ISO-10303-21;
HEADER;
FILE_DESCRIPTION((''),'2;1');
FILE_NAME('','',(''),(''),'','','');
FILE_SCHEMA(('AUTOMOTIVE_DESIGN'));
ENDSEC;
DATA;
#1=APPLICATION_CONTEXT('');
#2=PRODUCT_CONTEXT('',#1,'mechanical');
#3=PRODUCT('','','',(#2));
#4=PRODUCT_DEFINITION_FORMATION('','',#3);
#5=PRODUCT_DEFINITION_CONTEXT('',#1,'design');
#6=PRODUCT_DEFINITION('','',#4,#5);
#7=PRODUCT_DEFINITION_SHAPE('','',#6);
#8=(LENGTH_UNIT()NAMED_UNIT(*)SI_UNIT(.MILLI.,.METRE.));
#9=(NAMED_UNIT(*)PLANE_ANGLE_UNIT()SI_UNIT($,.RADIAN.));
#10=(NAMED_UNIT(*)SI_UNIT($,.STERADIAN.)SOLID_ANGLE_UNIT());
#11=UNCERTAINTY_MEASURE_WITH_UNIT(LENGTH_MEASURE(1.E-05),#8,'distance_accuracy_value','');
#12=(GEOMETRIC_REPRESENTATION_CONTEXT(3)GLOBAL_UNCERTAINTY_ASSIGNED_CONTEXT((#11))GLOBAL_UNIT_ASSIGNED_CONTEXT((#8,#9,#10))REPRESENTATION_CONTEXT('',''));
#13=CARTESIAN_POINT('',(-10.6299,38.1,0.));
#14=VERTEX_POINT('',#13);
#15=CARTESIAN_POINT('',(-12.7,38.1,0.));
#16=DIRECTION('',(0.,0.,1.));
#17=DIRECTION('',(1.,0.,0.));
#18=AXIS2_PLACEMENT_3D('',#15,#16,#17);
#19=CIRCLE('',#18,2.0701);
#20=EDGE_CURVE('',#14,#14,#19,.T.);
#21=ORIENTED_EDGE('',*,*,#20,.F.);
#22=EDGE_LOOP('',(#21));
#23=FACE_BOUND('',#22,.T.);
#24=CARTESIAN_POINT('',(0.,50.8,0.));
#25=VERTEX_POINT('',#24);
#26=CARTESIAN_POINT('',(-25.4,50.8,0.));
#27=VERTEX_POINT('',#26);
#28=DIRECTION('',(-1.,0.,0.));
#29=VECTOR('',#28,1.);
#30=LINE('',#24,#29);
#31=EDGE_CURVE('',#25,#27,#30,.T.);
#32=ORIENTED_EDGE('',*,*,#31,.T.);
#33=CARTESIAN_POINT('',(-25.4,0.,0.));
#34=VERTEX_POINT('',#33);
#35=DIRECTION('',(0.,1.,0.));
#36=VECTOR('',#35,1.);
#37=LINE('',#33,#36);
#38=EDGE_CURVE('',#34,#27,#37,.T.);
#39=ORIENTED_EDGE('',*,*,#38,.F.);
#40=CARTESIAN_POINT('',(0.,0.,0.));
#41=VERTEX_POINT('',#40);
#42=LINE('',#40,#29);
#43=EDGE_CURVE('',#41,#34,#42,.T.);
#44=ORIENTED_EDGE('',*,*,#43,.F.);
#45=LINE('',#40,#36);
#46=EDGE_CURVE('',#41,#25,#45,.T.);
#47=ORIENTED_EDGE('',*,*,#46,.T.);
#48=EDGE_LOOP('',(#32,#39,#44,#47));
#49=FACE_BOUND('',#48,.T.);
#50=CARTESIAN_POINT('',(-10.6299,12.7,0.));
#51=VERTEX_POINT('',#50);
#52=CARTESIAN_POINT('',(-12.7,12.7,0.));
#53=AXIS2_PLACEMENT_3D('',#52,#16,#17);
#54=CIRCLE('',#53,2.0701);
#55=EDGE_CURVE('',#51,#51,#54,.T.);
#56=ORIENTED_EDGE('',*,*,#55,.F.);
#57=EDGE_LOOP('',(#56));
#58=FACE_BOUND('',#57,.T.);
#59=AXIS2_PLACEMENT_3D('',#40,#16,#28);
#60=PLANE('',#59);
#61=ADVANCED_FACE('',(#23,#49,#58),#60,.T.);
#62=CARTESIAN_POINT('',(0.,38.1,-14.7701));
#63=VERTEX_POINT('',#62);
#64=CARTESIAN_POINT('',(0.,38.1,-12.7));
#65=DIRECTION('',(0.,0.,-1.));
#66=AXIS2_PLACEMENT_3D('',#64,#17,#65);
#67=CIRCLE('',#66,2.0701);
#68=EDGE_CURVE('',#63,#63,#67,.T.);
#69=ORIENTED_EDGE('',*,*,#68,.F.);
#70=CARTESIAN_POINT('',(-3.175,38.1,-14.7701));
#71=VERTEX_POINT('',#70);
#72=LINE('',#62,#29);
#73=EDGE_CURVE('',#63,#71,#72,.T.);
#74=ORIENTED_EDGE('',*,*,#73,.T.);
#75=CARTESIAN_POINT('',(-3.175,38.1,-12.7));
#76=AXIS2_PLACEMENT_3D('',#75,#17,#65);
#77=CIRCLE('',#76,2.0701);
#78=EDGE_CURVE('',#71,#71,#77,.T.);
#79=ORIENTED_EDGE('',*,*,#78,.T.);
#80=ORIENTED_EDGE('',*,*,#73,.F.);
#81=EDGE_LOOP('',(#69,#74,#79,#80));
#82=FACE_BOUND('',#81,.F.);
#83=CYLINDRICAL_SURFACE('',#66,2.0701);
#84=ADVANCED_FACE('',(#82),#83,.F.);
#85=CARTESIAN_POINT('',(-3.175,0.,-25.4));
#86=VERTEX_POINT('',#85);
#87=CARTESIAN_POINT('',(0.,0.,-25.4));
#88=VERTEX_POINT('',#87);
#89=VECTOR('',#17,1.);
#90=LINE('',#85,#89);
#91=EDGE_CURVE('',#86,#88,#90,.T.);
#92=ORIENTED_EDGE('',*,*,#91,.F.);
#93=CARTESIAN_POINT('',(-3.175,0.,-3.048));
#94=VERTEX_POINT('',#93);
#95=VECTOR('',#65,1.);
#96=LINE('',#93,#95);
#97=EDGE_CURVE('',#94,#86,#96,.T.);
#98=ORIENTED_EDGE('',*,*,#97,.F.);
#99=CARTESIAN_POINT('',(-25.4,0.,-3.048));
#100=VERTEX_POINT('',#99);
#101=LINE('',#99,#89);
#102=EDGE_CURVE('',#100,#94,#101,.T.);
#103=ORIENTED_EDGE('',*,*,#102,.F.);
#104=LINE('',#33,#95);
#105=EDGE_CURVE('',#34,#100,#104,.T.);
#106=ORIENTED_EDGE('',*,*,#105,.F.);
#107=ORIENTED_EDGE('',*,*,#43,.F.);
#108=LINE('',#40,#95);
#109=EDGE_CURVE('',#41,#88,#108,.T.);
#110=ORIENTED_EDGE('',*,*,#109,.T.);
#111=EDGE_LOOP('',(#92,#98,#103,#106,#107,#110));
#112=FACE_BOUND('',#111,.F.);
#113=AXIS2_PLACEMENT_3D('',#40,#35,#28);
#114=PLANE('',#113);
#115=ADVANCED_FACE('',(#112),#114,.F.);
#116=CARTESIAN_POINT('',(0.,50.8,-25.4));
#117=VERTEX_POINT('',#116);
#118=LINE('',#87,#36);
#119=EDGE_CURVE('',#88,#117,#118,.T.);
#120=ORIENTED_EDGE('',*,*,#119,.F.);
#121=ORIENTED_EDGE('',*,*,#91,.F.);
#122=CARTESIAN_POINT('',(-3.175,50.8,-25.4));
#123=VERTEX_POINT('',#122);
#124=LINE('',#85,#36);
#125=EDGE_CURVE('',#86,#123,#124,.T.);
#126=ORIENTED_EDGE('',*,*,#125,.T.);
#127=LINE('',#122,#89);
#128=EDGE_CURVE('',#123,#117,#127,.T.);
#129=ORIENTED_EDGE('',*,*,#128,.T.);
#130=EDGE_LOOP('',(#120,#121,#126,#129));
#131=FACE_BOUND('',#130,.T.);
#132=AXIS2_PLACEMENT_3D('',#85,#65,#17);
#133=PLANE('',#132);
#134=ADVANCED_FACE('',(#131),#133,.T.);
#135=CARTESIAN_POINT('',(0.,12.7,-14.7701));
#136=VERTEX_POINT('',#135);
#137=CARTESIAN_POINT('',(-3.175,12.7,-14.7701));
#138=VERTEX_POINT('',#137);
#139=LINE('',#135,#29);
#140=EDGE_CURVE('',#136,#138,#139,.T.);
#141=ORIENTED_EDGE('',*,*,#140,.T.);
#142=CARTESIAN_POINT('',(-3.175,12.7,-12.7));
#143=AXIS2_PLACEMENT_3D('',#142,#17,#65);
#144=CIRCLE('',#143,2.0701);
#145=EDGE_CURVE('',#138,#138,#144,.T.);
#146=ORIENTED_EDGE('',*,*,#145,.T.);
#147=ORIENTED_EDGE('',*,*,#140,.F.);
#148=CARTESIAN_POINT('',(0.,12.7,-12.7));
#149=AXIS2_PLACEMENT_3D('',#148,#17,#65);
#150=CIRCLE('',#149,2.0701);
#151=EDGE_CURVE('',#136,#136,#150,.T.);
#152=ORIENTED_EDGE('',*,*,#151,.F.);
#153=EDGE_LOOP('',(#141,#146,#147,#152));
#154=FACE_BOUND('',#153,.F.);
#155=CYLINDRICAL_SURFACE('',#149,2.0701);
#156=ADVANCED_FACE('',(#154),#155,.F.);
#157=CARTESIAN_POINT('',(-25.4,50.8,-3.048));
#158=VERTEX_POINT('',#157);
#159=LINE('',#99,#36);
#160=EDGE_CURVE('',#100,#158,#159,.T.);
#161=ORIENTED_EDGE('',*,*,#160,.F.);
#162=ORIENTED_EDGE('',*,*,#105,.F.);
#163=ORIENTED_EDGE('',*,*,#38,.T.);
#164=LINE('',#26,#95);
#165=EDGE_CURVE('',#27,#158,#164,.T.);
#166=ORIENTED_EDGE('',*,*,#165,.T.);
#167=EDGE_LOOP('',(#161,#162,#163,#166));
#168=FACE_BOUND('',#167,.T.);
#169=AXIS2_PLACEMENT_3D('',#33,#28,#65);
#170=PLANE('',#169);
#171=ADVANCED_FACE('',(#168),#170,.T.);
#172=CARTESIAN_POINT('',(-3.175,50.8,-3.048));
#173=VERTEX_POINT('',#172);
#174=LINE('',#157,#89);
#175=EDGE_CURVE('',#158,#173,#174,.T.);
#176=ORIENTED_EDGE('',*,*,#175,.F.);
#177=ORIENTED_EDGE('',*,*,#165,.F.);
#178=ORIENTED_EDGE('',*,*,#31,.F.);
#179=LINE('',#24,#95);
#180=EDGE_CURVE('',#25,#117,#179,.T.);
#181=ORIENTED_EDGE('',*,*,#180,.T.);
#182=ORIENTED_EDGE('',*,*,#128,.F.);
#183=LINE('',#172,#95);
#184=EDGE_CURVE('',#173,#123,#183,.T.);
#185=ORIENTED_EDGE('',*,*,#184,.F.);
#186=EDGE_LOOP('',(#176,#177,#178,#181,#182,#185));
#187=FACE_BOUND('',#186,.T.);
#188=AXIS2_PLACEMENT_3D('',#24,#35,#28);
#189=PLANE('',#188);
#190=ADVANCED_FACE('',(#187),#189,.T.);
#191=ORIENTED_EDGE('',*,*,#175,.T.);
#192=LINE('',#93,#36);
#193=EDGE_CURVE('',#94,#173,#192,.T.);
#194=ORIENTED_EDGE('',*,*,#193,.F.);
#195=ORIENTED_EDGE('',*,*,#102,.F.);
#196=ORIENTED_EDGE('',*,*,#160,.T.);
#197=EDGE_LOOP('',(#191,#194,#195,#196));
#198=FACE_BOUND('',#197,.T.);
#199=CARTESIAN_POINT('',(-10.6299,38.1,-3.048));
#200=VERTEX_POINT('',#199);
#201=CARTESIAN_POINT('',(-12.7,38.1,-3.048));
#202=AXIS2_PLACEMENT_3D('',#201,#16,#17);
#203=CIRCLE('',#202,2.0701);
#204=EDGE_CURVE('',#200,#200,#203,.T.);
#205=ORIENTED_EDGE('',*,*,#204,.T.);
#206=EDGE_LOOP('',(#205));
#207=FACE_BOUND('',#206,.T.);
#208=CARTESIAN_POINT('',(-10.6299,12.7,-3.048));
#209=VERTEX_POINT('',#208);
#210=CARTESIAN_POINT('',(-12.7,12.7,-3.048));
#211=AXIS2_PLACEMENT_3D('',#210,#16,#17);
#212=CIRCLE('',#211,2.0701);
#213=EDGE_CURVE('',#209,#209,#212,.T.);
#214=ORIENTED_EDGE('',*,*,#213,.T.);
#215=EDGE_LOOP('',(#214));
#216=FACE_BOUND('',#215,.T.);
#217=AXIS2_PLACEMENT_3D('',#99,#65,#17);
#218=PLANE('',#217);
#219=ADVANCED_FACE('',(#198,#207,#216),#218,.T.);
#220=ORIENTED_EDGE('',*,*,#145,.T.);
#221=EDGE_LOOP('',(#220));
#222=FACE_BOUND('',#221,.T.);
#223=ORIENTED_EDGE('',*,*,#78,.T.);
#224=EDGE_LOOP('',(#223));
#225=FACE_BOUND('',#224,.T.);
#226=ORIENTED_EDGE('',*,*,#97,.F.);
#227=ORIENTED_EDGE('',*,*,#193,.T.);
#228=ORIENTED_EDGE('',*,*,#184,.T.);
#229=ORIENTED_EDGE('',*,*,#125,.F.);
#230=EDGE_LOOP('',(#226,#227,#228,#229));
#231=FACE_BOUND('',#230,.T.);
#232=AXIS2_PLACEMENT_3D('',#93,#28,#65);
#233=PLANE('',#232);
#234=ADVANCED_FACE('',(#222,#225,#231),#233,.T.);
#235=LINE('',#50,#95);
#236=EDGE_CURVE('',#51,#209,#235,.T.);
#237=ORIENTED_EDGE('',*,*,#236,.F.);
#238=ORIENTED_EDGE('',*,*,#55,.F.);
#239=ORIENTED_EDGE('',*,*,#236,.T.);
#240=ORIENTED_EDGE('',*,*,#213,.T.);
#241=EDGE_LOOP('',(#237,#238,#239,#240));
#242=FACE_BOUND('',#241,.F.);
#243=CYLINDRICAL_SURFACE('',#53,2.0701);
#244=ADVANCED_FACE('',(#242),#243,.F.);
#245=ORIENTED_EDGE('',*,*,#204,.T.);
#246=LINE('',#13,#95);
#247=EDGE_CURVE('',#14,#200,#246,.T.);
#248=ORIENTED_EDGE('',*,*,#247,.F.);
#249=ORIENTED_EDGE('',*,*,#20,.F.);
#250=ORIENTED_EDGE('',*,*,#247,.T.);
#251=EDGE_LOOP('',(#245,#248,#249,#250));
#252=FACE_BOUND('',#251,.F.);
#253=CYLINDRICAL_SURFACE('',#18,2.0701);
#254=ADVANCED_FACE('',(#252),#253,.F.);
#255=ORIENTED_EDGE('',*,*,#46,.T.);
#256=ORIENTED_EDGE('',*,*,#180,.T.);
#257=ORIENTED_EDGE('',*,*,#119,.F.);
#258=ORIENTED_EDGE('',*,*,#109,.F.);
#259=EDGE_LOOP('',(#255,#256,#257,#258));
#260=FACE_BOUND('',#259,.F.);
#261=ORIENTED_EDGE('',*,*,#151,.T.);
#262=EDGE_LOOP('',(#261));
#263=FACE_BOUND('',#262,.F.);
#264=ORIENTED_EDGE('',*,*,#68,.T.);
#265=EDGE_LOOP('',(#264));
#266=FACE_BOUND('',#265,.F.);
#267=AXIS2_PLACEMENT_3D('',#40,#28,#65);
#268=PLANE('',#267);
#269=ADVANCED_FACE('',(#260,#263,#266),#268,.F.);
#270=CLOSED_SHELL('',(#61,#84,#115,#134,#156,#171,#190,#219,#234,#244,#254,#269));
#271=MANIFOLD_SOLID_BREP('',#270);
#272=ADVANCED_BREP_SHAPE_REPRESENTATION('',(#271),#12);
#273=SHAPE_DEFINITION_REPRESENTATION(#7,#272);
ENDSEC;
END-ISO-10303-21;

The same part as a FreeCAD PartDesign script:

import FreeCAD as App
import Part
import Sketcher
Q = App.Units.Quantity

doc = App.newDocument("Part")
params = doc.addObject("Spreadsheet::Sheet", "Params")
for row, (alias, value) in enumerate([
    ("sketch1_width", "1 in"),
    ("sketch1_height", "0.12 in"),
    ("sketch1_width2", "0.125 in"),
    ("pad1_length", "2 in"),
    ("sketch2_diameter", "0.163 in"),
    ("sketch3_diameter", "0.163 in"),
    ("pocket2_length", "1 in"),
], start=1):
    params.set(f"A{row}", alias)
    params.set(f"B{row}", "=" + value)
    params.setAlias(f"B{row}", alias)

body = doc.addObject("PartDesign::Body", "Body")

# Sketch on XZ plane
sketch1 = doc.addObject("Sketcher::SketchObject", "Sketch")
body.addObject(sketch1)
sketch1.AttachmentSupport = (doc.XZ_Plane, [""])
sketch1.MapMode = "FlatFace"
sketch1.addGeometry([
    Part.LineSegment(App.Vector(-25.4, 0, 0), App.Vector(0, 0, 0)),  # 0
    Part.LineSegment(App.Vector(0, 0, 0), App.Vector(0, -25.4, 0)),  # 1
    Part.LineSegment(App.Vector(0, -25.4, 0), App.Vector(-3.2, -25.4, 0)),  # 2
    Part.LineSegment(App.Vector(-3.2, -25.4, 0), App.Vector(-3.2, -3, 0)),  # 3
    Part.LineSegment(App.Vector(-3.2, -3, 0), App.Vector(-25.4, -3, 0)),  # 4
    Part.LineSegment(App.Vector(-25.4, -3, 0), App.Vector(-25.4, 0, 0)),  # 5
], False)
sketch1.addConstraint([
    Sketcher.Constraint("Coincident", 0, 2, 1, 1),
    Sketcher.Constraint("Coincident", 1, 2, 2, 1),
    Sketcher.Constraint("Coincident", 2, 2, 3, 1),
    Sketcher.Constraint("Coincident", 3, 2, 4, 1),
    Sketcher.Constraint("Coincident", 4, 2, 5, 1),
    Sketcher.Constraint("Coincident", 5, 2, 0, 1),
    Sketcher.Constraint("Horizontal", 0),
    Sketcher.Constraint("Vertical", 1),
    Sketcher.Constraint("Horizontal", 2),
    Sketcher.Constraint("Vertical", 3),
    Sketcher.Constraint("Horizontal", 4),
    Sketcher.Constraint("Vertical", 5),
    Sketcher.Constraint("Coincident", 0, 2, -1, 1),
    Sketcher.Constraint("Equal", 0, 1),
    Sketcher.Constraint("DistanceX", 0, 1, 0, 2, Q("1 in")),
    Sketcher.Constraint("DistanceY", 5, 1, 5, 2, Q("0.12 in")),
    Sketcher.Constraint("DistanceX", 2, 2, 2, 1, Q("0.125 in")),
])
sketch1.setExpression("Constraints[14]", "Params.sketch1_width")
sketch1.setExpression("Constraints[15]", "Params.sketch1_height")
sketch1.setExpression("Constraints[16]", "Params.sketch1_width2")
pad1 = doc.addObject("PartDesign::Pad", "Pad")
body.addObject(pad1)
pad1.Profile = sketch1
pad1.setExpression("Length", "Params.pad1_length")
pad1.Reversed = True

# Sketch on XY plane
sketch2 = doc.addObject("Sketcher::SketchObject", "Sketch001")
body.addObject(sketch2)
sketch2.AttachmentSupport = (doc.XY_Plane, [""])
sketch2.MapMode = "FlatFace"
sketch2.addGeometry([
    Part.Circle(App.Vector(-12.7, 12.7, 0), App.Vector(0, 0, 1), 2.1),
    Part.Circle(App.Vector(-12.7, 38.1, 0), App.Vector(0, 0, 1), 2.1),
], False)
sketch2.addConstraint([
    Sketcher.Constraint("Equal", 0, 1),
    Sketcher.Constraint("Vertical", 0, 3, 1, 3),
    Sketcher.Constraint("Diameter", 0, Q("0.163 in")),
    Sketcher.Constraint("DistanceY", 0, 3, 1, 3, Q("1 in")),
    Sketcher.Constraint("DistanceX", 0, 3, -1, 1, Q("0.5 in")),
    Sketcher.Constraint("DistanceY", -1, 1, 0, 3, Q("0.5 in")),
])
sketch2.setExpression("Constraints[2]", "Params.sketch2_diameter")
pocket1 = doc.addObject("PartDesign::Pocket", "Pocket")
body.addObject(pocket1)
pocket1.Profile = sketch2
pocket1.Type = "ThroughAll"

# Sketch on YZ plane
sketch3 = doc.addObject("Sketcher::SketchObject", "Sketch002")
body.addObject(sketch3)
sketch3.AttachmentSupport = (doc.YZ_Plane, [""])
sketch3.MapMode = "FlatFace"
sketch3.addGeometry([
    Part.Circle(App.Vector(38.1, -12.7, 0), App.Vector(0, 0, 1), 2.1),
    Part.Circle(App.Vector(12.7, -12.7, 0), App.Vector(0, 0, 1), 2.1),
], False)
sketch3.addConstraint([
    Sketcher.Constraint("Equal", 0, 1),
    Sketcher.Constraint("Horizontal", 0, 3, 1, 3),
    Sketcher.Constraint("Diameter", 0, Q("0.163 in")),
    Sketcher.Constraint("DistanceX", 1, 3, 0, 3, Q("1 in")),
    Sketcher.Constraint("DistanceY", 0, 3, -1, 1, Q("0.5 in")),
    Sketcher.Constraint("DistanceX", -1, 1, 1, 3, Q("0.5 in")),
])
sketch3.setExpression("Constraints[2]", "Params.sketch3_diameter")
pocket2 = doc.addObject("PartDesign::Pocket", "Pocket001")
body.addObject(pocket2)
pocket2.Profile = sketch3
pocket2.setExpression("Length", "Params.pocket2_length")

doc.recompute()
